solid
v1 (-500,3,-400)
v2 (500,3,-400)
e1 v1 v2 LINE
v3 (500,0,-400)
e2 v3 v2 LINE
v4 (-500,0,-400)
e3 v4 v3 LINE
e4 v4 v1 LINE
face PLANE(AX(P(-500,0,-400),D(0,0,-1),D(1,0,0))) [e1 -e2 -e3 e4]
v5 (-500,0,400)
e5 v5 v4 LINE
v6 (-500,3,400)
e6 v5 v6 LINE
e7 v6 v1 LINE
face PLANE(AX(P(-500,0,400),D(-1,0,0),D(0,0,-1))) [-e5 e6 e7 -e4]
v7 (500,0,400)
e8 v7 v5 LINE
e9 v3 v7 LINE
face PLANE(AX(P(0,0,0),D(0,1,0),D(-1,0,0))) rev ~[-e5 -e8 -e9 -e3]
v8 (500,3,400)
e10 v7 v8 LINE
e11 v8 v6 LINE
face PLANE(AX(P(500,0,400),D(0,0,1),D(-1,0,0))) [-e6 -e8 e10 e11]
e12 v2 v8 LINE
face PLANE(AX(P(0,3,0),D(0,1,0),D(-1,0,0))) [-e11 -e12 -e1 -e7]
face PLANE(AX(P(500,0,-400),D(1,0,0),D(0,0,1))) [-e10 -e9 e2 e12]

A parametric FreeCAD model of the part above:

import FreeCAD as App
import Part
import Sketcher
Q = App.Units.Quantity


def add_polygon(sketch, points):
    """Adds a closed chain of lines whose ends are joined by coincident constraints."""
    first, n = sketch.GeometryCount, len(points)
    for a, b in zip(points, points[1:] + points[:1]):
        sketch.addGeometry(Part.LineSegment(App.Vector(*a, 0), App.Vector(*b, 0)), False)
    for i in range(n):
        sketch.addConstraint(Sketcher.Constraint("Coincident", first + i, 2, first + (i + 1) % n, 1))

doc = App.newDocument("Part")
body = doc.addObject("PartDesign::Body", "Body")

sketch1 = doc.addObject("Sketcher::SketchObject", "Sketch")
body.addObject(sketch1)
sketch1.AttachmentSupport = (doc.XZ_Plane, [""])
sketch1.MapMode = "FlatFace"
add_polygon(sketch1, [(-500, 400), (500, 400), (500, -400), (-500, -400)])
sketch1.addConstraint([
    Sketcher.Constraint("Horizontal", 0),
    Sketcher.Constraint("Vertical", 1),
    Sketcher.Constraint("Horizontal", 2),
    Sketcher.Constraint("Vertical", 3),
    Sketcher.Constraint("Symmetric", 0, 2, 2, 2, -1, 1),
    Sketcher.Constraint("DistanceX", 0, 1, 0, 2, Q("1000 mm")),
    Sketcher.Constraint("DistanceY", 1, 2, 1, 1, Q("800 mm")),
])
pad1 = doc.addObject("PartDesign::Pad", "Pad")
body.addObject(pad1)
pad1.Profile = sketch1
pad1.Length = 3
pad1.Reversed = True

doc.recompute()
